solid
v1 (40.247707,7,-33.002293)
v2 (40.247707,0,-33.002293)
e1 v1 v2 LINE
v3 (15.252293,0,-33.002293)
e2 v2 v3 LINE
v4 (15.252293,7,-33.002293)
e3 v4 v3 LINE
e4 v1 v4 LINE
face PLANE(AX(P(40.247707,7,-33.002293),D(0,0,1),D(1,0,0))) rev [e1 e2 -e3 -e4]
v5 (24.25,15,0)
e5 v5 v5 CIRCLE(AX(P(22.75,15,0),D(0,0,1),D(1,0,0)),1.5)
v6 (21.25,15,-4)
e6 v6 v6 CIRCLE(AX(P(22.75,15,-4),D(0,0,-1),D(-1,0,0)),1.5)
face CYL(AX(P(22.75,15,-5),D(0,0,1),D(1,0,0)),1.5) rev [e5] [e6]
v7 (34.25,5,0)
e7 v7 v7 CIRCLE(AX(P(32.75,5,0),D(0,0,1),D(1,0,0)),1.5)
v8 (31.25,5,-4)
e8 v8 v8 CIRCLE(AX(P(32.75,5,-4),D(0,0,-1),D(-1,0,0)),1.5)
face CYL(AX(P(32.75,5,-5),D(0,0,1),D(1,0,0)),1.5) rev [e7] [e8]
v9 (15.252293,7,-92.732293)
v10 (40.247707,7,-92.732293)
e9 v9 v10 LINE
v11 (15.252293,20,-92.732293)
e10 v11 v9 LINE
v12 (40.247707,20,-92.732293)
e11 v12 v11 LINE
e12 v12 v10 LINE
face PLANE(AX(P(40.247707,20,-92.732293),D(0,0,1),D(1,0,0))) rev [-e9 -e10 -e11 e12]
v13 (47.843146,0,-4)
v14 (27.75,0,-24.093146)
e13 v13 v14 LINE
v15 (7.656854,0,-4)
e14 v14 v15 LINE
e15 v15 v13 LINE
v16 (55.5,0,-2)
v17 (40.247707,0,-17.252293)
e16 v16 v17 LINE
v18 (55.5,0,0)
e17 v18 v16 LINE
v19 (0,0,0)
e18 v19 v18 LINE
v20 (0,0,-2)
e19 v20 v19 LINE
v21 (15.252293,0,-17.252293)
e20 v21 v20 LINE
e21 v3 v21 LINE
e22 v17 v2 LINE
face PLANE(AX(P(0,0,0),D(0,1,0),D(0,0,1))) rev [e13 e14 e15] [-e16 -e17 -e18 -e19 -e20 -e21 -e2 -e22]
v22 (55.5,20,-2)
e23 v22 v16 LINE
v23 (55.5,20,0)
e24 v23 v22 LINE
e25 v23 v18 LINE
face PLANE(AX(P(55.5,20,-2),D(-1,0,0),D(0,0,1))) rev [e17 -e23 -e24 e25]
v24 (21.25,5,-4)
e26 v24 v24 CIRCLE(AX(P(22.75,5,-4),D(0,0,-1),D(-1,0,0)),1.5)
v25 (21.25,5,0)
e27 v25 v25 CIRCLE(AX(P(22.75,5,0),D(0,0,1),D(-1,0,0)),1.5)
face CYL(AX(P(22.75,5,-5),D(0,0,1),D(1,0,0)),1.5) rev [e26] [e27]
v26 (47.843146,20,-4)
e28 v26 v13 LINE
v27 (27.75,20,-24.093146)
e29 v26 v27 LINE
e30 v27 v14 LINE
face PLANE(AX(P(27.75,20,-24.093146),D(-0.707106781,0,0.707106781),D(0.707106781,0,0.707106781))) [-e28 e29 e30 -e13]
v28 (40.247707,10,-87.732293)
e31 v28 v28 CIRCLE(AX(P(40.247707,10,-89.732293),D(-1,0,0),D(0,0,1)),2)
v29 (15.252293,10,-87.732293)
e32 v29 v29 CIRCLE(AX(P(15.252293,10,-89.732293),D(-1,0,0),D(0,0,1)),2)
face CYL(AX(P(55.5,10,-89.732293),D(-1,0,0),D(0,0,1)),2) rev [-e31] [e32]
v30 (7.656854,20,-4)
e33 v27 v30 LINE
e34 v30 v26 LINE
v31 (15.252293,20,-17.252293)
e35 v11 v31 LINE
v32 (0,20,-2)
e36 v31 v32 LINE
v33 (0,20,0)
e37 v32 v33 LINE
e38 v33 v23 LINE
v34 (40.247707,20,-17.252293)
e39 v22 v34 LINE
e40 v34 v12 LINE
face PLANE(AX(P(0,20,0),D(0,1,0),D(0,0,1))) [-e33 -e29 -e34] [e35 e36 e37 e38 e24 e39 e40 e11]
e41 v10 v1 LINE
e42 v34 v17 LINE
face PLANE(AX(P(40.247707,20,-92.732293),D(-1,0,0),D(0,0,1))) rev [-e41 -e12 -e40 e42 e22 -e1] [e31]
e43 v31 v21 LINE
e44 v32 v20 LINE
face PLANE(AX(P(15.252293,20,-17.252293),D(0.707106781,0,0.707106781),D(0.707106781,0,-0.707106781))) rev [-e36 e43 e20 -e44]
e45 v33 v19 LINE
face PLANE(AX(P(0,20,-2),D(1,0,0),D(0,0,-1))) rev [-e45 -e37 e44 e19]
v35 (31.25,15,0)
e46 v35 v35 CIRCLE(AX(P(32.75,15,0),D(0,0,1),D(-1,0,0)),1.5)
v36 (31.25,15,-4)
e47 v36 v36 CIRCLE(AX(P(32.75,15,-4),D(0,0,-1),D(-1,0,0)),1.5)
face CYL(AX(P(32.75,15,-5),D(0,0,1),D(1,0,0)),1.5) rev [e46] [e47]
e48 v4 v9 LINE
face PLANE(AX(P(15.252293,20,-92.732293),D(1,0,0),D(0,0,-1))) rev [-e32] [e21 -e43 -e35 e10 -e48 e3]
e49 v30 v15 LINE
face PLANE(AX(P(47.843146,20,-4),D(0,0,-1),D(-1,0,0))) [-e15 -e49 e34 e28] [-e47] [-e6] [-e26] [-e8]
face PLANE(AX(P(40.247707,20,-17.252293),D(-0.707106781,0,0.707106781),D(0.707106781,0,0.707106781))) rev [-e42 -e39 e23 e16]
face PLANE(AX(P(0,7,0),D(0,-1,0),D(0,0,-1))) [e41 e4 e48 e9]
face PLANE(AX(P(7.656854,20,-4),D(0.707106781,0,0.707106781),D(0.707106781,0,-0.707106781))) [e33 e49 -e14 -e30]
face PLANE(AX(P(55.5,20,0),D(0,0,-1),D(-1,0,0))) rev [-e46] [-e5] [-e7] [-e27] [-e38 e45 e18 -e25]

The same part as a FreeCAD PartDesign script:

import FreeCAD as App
import Part
import Sketcher

doc = App.newDocument("Part")
body = doc.addObject("PartDesign::Body", "Body")

# Sketch on XZ plane
sketch1 = body.newObject("Sketcher::SketchObject", "Sketch")
sketch1.AttachmentSupport = (doc.getObject("XZ_Plane"), [""])
sketch1.MapMode = "FlatFace"
sketch1.addGeometry([
    Part.LineSegment(App.Vector(40.2, -92.7, 0), App.Vector(15.3, -92.7, 0)),  # 0
    Part.LineSegment(App.Vector(15.3, -92.7, 0), App.Vector(15.3, -17.3, 0)),  # 1
    Part.LineSegment(App.Vector(15.3, -17.3, 0), App.Vector(0, -2, 0)),  # 2
    Part.LineSegment(App.Vector(0, -2, 0), App.Vector(0, 0, 0)),  # 3
    Part.LineSegment(App.Vector(0, 0, 0), App.Vector(55.5, 0, 0)),  # 4
    Part.LineSegment(App.Vector(55.5, 0, 0), App.Vector(55.5, -2, 0)),  # 5
    Part.LineSegment(App.Vector(55.5, -2, 0), App.Vector(40.2, -17.3, 0)),  # 6
    Part.LineSegment(App.Vector(40.2, -17.3, 0), App.Vector(40.2, -92.7, 0)),  # 7
    Part.LineSegment(App.Vector(7.7, -4, 0), App.Vector(27.8, -24.1, 0)),  # 8
    Part.LineSegment(App.Vector(27.8, -24.1, 0), App.Vector(47.8, -4, 0)),  # 9
    Part.LineSegment(App.Vector(47.8, -4, 0), App.Vector(7.7, -4, 0)),  # 10
], False)
sketch1.addConstraint([
    Sketcher.Constraint("Coincident", 0, 2, 1, 1),
    Sketcher.Constraint("Coincident", 1, 2, 2, 1),
    Sketcher.Constraint("Coincident", 2, 2, 3, 1),
    Sketcher.Constraint("Coincident", 3, 2, 4, 1),
    Sketcher.Constraint("Coincident", 4, 2, 5, 1),
    Sketcher.Constraint("Coincident", 5, 2, 6, 1),
    Sketcher.Constraint("Coincident", 6, 2, 7, 1),
    Sketcher.Constraint("Coincident", 7, 2, 0, 1),
    Sketcher.Constraint("Coincident", 8, 2, 9, 1),
    Sketcher.Constraint("Coincident", 9, 2, 10, 1),
    Sketcher.Constraint("Coincident", 10, 2, 8, 1),
    Sketcher.Constraint("Horizontal", 0),
    Sketcher.Constraint("Vertical", 1),
    Sketcher.Constraint("Vertical", 3),
    Sketcher.Constraint("Horizontal", 4),
    Sketcher.Constraint("Vertical", 5),
    Sketcher.Constraint("Vertical", 7),
    Sketcher.Constraint("Horizontal", 10),
    Sketcher.Constraint("Coincident", 3, 2, -1, 1),
    Sketcher.Constraint("Perpendicular", 2, 6),
    Sketcher.Constraint("Perpendicular", 6, 8),
    Sketcher.Constraint("Perpendicular", 8, 9),
    Sketcher.Constraint("Horizontal", 2, 2, 5, 2),
    Sketcher.Constraint("Horizontal", 1, 2, 6, 2),
    Sketcher.Constraint("Equal", 2, 6),
    Sketcher.Constraint("DistanceY", 3, 1, 3, 2, 2.0),
    Sketcher.Constraint("DistanceX", 4, 1, 4, 2, 55.5),
    Sketcher.Constraint("DistanceY", 9, 2, -1, 1, 4.0),
    Sketcher.Constraint("DistanceY", 1, 1, 1, 2, 75.48),
    Sketcher.Constraint("Distance", 2, 21.57),
    Sketcher.Constraint("DistanceX", -1, 1, 8, 2, 27.75),
    Sketcher.Constraint("Distance", 8, 28.415999),
])
pad1 = body.newObject("PartDesign::Pad", "Pad")
pad1.Profile = sketch1
pad1.Length = 20
pad1.Reversed = True

# Sketch on XY plane
sketch2 = body.newObject("Sketcher::SketchObject", "Sketch001")
sketch2.AttachmentSupport = (doc.getObject("XY_Plane"), [""])
sketch2.MapMode = "FlatFace"
sketch2.addGeometry([
    Part.Circle(App.Vector(22.8, 15, 0), App.Vector(0, 0, 1), 1.5),
    Part.Circle(App.Vector(32.8, 15, 0), App.Vector(0, 0, 1), 1.5),
    Part.Circle(App.Vector(32.8, 5, 0), App.Vector(0, 0, 1), 1.5),
    Part.Circle(App.Vector(22.8, 5, 0), App.Vector(0, 0, 1), 1.5),
], False)
sketch2.addConstraint([
    Sketcher.Constraint("Equal", 0, 1),
    Sketcher.Constraint("Equal", 1, 2),
    Sketcher.Constraint("Equal", 2, 3),
    Sketcher.Constraint("Horizontal", 0, 3, 1, 3),
    Sketcher.Constraint("Horizontal", 2, 3, 3, 3),
    Sketcher.Constraint("Vertical", 1, 3, 2, 3),
    Sketcher.Constraint("Vertical", 0, 3, 3, 3),
    Sketcher.Constraint("Diameter", 0, 3.0),
    Sketcher.Constraint("DistanceY", -1, 1, 0, 3, 15.0),
    Sketcher.Constraint("DistanceY", -1, 1, 2, 3, 5.0),
    Sketcher.Constraint("DistanceX", 0, 3, 1, 3, 10.0),
    Sketcher.Constraint("DistanceX", -1, 1, 0, 3, 22.75),
])
pocket1 = body.newObject("PartDesign::Pocket", "Pocket")
pocket1.Profile = sketch2
pocket1.Length = 5

# Sketch on XZ plane
sketch3 = body.newObject("Sketcher::SketchObject", "Sketch002")
sketch3.AttachmentSupport = (doc.getObject("XZ_Plane"), [""])
sketch3.MapMode = "FlatFace"
sketch3.addGeometry([
    Part.LineSegment(App.Vector(15, -33, 0), App.Vector(15, -93, 0)),
    Part.LineSegment(App.Vector(15, -93, 0), App.Vector(40, -93, 0)),
    Part.LineSegment(App.Vector(40, -93, 0), App.Vector(40, -33, 0)),
    Part.LineSegment(App.Vector(40, -33, 0), App.Vector(15, -33, 0)),
], False)
sketch3.addConstraint([
    Sketcher.Constraint("Coincident", 0, 2, 1, 1),
    Sketcher.Constraint("Coincident", 1, 2, 2, 1),
    Sketcher.Constraint("Coincident", 2, 2, 3, 1),
    Sketcher.Constraint("Coincident", 3, 2, 0, 1),
    Sketcher.Constraint("Vertical", 0),
    Sketcher.Constraint("Horizontal", 1),
    Sketcher.Constraint("Vertical", 2),
    Sketcher.Constraint("Horizontal", 3),
    Sketcher.Constraint("DistanceY", 0, 2, 0, 1, 59.73),
    Sketcher.Constraint("DistanceX", -1, 1, 0, 2, 15.25),
    Sketcher.Constraint("DistanceX", 1, 1, 1, 2, 24.997707),
    Sketcher.Constraint("DistanceY", 0, 2, -1, 1, 92.732293),
])
pocket2 = body.newObject("PartDesign::Pocket", "Pocket001")
pocket2.Profile = sketch3
pocket2.Length = 7

# Sketch on YZ plane
sketch4 = body.newObject("Sketcher::SketchObject", "Sketch003")
sketch4.AttachmentSupport = (doc.getObject("YZ_Plane"), [""])
sketch4.MapMode = "FlatFace"
sketch4.AttachmentOffset = App.Placement(App.Vector(0, 0, 15.252293), App.Rotation())
sketch4.addGeometry(Part.Circle(App.Vector(10, -89.7, 0), App.Vector(0, 0, 1), 2), False)
sketch4.addConstraint([
    Sketcher.Constraint("Diameter", 0, 4.0),
    Sketcher.Constraint("DistanceX", -1, 1, 0, 3, 10.0),
    Sketcher.Constraint("DistanceY", 0, 3, -1, 1, 89.732293),
])
pocket3 = body.newObject("PartDesign::Pocket", "Pocket002")
pocket3.Profile = sketch4
pocket3.Type = "ThroughAll"
pocket3.Reversed = True

doc.recompute()
